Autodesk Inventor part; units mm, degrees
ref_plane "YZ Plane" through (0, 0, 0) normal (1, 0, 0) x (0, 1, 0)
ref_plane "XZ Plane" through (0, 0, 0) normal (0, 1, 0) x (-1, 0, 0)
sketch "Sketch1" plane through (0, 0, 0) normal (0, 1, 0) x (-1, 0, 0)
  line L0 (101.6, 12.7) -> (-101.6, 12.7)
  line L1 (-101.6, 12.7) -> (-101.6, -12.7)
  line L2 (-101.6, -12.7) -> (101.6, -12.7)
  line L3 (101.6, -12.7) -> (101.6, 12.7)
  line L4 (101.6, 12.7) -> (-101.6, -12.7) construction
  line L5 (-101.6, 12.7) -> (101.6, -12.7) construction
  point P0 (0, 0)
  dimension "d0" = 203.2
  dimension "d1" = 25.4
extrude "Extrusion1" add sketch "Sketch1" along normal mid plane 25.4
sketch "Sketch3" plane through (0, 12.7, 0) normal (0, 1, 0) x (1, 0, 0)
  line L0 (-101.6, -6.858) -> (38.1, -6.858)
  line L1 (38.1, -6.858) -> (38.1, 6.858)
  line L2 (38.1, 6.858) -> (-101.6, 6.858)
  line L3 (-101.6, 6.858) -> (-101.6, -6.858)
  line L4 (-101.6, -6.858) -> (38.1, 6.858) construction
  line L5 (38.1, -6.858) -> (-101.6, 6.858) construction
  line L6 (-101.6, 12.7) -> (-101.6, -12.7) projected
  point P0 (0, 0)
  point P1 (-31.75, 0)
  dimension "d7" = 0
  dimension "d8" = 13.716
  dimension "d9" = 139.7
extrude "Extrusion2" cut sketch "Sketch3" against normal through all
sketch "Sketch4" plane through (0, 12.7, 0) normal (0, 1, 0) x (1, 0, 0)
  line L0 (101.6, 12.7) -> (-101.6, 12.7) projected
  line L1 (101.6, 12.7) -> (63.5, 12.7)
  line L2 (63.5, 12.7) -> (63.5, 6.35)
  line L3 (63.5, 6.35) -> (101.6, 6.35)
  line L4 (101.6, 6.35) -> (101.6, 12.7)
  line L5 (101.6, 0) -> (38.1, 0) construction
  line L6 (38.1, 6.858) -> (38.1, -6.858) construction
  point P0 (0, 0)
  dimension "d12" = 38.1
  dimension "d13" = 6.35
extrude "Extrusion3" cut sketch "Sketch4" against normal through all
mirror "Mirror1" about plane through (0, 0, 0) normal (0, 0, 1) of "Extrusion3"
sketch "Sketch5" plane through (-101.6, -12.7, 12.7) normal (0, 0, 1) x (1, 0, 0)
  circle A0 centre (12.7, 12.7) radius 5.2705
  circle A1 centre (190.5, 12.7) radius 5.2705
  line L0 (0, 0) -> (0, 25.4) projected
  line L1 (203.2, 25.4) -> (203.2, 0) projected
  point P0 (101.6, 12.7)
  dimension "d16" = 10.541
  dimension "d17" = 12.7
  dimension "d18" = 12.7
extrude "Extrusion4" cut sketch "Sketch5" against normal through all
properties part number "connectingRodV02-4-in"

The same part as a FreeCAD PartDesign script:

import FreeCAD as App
import Part
import Sketcher
Q = App.Units.Quantity

doc = App.newDocument("Part")
body = doc.addObject("PartDesign::Body", "Body")

# Sketch on XZ plane
sketch1 = body.newObject("Sketcher::SketchObject", "Sketch")
sketch1.AttachmentSupport = (doc.getObject("XZ_Plane"), [""])
sketch1.MapMode = "FlatFace"
sketch1.addGeometry(Part.LineSegment(App.Vector(-102, -13, 0), App.Vector(-102, 13, 0)), False)
sketch1.addGeometry(Part.LineSegment(App.Vector(-102, 13, 0), App.Vector(102, 13, 0)), False)
sketch1.addGeometry(Part.LineSegment(App.Vector(102, 13, 0), App.Vector(102, -13, 0)), False)
sketch1.addGeometry(Part.LineSegment(App.Vector(102, -13, 0), App.Vector(-102, -13, 0)), False)
sketch1.addConstraint(Sketcher.Constraint("Coincident", 0, 2, 1, 1))
sketch1.addConstraint(Sketcher.Constraint("Coincident", 1, 2, 2, 1))
sketch1.addConstraint(Sketcher.Constraint("Coincident", 2, 2, 3, 1))
sketch1.addConstraint(Sketcher.Constraint("Coincident", 3, 2, 0, 1))
sketch1.addConstraint(Sketcher.Constraint("Vertical", 0))
sketch1.addConstraint(Sketcher.Constraint("Horizontal", 1))
sketch1.addConstraint(Sketcher.Constraint("Vertical", 2))
sketch1.addConstraint(Sketcher.Constraint("Horizontal", 3))
sketch1.addConstraint(Sketcher.Constraint("Symmetric", 0, 2, 2, 2, -1, 1))
sketch1.addConstraint(Sketcher.Constraint("DistanceX", 1, 1, 1, 2, Q("8 in")))
sketch1.addConstraint(Sketcher.Constraint("DistanceY", 0, 1, 0, 2, Q("1 in")))
pad1 = body.newObject("PartDesign::Pad", "Pad")
pad1.Profile = sketch1
pad1.Length = Q("1 in")
pad1.Midplane = True

# Sketch on XZ plane
sketch2 = body.newObject("Sketcher::SketchObject", "Sketch001")
sketch2.AttachmentSupport = (doc.getObject("XZ_Plane"), [""])
sketch2.MapMode = "FlatFace"
sketch2.AttachmentOffset = App.Placement(App.Vector(0, 0, -0.5 * 25.4), App.Rotation())
sketch2.addGeometry(Part.LineSegment(App.Vector(-102, -7, 0), App.Vector(-102, 7, 0)), False)
sketch2.addGeometry(Part.LineSegment(App.Vector(-102, 7, 0), App.Vector(38, 7, 0)), False)
sketch2.addGeometry(Part.LineSegment(App.Vector(38, 7, 0), App.Vector(38, -7, 0)), False)
sketch2.addGeometry(Part.LineSegment(App.Vector(38, -7, 0), App.Vector(-102, -7, 0)), False)
sketch2.addConstraint(Sketcher.Constraint("Coincident", 0, 2, 1, 1))
sketch2.addConstraint(Sketcher.Constraint("Coincident", 1, 2, 2, 1))
sketch2.addConstraint(Sketcher.Constraint("Coincident", 2, 2, 3, 1))
sketch2.addConstraint(Sketcher.Constraint("Coincident", 3, 2, 0, 1))
sketch2.addConstraint(Sketcher.Constraint("Vertical", 0))
sketch2.addConstraint(Sketcher.Constraint("Horizontal", 1))
sketch2.addConstraint(Sketcher.Constraint("Vertical", 2))
sketch2.addConstraint(Sketcher.Constraint("Horizontal", 3))
sketch2.addConstraint(Sketcher.Constraint("DistanceX", 1, 1, 1, 2, Q("5.5 in")))
sketch2.addConstraint(Sketcher.Constraint("DistanceY", 0, 1, 0, 2, Q("0.54 in")))
sketch2.addConstraint(Sketcher.Constraint("DistanceX", 0, 2, -1, 1, Q("4 in")))
sketch2.addConstraint(Sketcher.Constraint("DistanceY", -1, 1, 0, 2, Q("0.27 in")))
pocket1 = body.newObject("PartDesign::Pocket", "Pocket")
pocket1.Profile = sketch2
pocket1.Type = "ThroughAll"
pocket1.Reversed = True

# Sketch on XZ plane
sketch3 = body.newObject("Sketcher::SketchObject", "Sketch002")
sketch3.AttachmentSupport = (doc.getObject("XZ_Plane"), [""])
sketch3.MapMode = "FlatFace"
sketch3.AttachmentOffset = App.Placement(App.Vector(0, 0, -0.5 * 25.4), App.Rotation())
sketch3.addGeometry(Part.LineSegment(App.Vector(102, -6, 0), App.Vector(102, -13, 0)), False)
sketch3.addGeometry(Part.LineSegment(App.Vector(102, -13, 0), App.Vector(64, -13, 0)), False)
sketch3.addGeometry(Part.LineSegment(App.Vector(64, -13, 0), App.Vector(64, -6, 0)), False)
sketch3.addGeometry(Part.LineSegment(App.Vector(64, -6, 0), App.Vector(102, -6, 0)), False)
sketch3.addConstraint(Sketcher.Constraint("Coincident", 0, 2, 1, 1))
sketch3.addConstraint(Sketcher.Constraint("Coincident", 1, 2, 2, 1))
sketch3.addConstraint(Sketcher.Constraint("Coincident", 2, 2, 3, 1))
sketch3.addConstraint(Sketcher.Constraint("Coincident", 3, 2, 0, 1))
sketch3.addConstraint(Sketcher.Constraint("Vertical", 0))
sketch3.addConstraint(Sketcher.Constraint("Horizontal", 1))
sketch3.addConstraint(Sketcher.Constraint("Vertical", 2))
sketch3.addConstraint(Sketcher.Constraint("Horizontal", 3))
sketch3.addConstraint(Sketcher.Constraint("DistanceX", 1, 2, 1, 1, Q("1.5 in")))
sketch3.addConstraint(Sketcher.Constraint("DistanceY", 0, 2, 0, 1, Q("0.25 in")))
sketch3.addConstraint(Sketcher.Constraint("DistanceY", 2, 2, -1, 1, Q("0.25 in")))
sketch3.addConstraint(Sketcher.Constraint("DistanceX", -1, 1, 0, 2, Q("4 in")))
pocket2 = body.newObject("PartDesign::Pocket", "Pocket001")
pocket2.Profile = sketch3
pocket2.Type = "ThroughAll"
pocket2.Reversed = True
doc.recompute()

mirrored = body.newObject("PartDesign::Mirrored", "Mirrored")
mirrored.Originals = [pocket2]
mirrored.MirrorPlane = (doc.getObject("XY_Plane"), [""])
body.Tip = mirrored

# Sketch on XY plane
sketch4 = body.newObject("Sketcher::SketchObject", "Sketch003")
sketch4.AttachmentSupport = (doc.getObject("XY_Plane"), [""])
sketch4.MapMode = "FlatFace"
sketch4.AttachmentOffset = App.Placement(App.Vector(0, 0, 0.5 * 25.4), App.Rotation())
sketch4.addGeometry(Part.Circle(App.Vector(-89, 0, 0), App.Vector(0, 0, 1), 5), False)
sketch4.addGeometry(Part.Circle(App.Vector(89, 0, 0), App.Vector(0, 0, 1), 5), False)
sketch4.addConstraint(Sketcher.Constraint("Equal", 0, 1))
sketch4.addConstraint(Sketcher.Constraint("Symmetric", 0, 3, 1, 3, -1, 1))
sketch4.addConstraint(Sketcher.Constraint("PointOnObject", 0, 3, -1))
sketch4.addConstraint(Sketcher.Constraint("Diameter", 0, Q("0.415 in")))
sketch4.addConstraint(Sketcher.Constraint("DistanceX", 0, 3, 1, 3, Q("7 in")))
pocket3 = body.newObject("PartDesign::Pocket", "Pocket002")
pocket3.Profile = sketch4
pocket3.Type = "ThroughAll"

doc.recompute()
